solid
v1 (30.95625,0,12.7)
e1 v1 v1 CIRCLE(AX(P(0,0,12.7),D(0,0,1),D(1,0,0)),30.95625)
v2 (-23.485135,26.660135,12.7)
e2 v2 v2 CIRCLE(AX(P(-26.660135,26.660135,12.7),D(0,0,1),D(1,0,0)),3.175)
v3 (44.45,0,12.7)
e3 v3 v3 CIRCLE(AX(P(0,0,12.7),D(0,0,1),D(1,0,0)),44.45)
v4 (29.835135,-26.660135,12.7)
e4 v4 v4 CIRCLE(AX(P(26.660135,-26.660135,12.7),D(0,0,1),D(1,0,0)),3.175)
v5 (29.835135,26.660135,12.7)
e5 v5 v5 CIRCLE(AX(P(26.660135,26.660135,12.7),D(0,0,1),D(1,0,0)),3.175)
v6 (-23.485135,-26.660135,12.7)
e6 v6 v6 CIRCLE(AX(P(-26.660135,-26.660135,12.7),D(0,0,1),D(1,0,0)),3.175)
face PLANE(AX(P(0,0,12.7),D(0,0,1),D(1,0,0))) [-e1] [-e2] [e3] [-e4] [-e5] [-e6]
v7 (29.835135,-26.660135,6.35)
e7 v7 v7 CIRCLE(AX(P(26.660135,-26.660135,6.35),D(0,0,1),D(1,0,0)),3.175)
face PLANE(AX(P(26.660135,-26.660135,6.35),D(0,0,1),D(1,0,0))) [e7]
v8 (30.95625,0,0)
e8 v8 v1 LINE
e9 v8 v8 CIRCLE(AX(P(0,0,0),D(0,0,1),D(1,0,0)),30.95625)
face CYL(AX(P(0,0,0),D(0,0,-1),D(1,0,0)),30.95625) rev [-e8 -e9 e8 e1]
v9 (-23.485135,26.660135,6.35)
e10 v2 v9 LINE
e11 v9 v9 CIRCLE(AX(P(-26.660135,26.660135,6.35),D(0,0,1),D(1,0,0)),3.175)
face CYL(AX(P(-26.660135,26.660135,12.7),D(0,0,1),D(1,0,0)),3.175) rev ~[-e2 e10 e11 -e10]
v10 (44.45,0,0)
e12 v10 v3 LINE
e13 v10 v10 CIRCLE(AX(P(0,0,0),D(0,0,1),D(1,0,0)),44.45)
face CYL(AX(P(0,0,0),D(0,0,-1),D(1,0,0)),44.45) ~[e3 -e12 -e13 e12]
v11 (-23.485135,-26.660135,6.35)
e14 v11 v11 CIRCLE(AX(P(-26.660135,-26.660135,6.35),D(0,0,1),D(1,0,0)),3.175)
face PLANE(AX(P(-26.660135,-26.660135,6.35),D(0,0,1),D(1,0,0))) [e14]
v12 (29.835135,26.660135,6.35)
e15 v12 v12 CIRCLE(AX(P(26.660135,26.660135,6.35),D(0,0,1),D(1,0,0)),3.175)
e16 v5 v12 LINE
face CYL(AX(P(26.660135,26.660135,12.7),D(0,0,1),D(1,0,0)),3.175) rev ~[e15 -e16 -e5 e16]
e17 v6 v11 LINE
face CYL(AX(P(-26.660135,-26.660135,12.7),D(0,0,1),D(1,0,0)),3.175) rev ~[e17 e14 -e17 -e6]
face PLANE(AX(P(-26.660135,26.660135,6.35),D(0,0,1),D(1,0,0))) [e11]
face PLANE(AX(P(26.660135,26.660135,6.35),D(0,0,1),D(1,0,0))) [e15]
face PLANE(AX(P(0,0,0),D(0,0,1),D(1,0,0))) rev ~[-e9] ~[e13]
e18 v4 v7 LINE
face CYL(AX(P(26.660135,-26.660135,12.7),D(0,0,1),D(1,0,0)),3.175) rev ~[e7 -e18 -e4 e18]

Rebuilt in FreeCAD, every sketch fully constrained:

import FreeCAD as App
import Part
import Sketcher
from FreeCAD import Vector
Q = App.Units.Quantity

doc = App.newDocument("Part")
body = doc.addObject("PartDesign::Body", "Body")

# Sketch on XY plane
sketch1 = body.newObject("Sketcher::SketchObject", "Sketch")
sketch1.AttachmentSupport = (doc.getObject("XY_Plane"), [""])
sketch1.MapMode = "FlatFace"
sketch1.addGeometry([
    Part.Circle(Vector(0, 0, 0), Vector(0, 0, 1), 44),
    Part.Circle(Vector(0, 0, 0), Vector(0, 0, 1), 31),
], False)
sketch1.addConstraint([
    Sketcher.Constraint("Coincident", 0, 3, -1, 1),
    Sketcher.Constraint("Coincident", 1, 3, -1, 1),
    Sketcher.Constraint("Diameter", 0, Q("3.5 in")),
    Sketcher.Constraint("Diameter", 1, Q("2.4375 in")),
])
pad1 = body.newObject("PartDesign::Pad", "Pad")
pad1.Profile = sketch1
pad1.Length = Q("0.5 in")

# Sketch on XY plane
sketch2 = body.newObject("Sketcher::SketchObject", "Sketch001")
sketch2.AttachmentSupport = (doc.getObject("XY_Plane"), [""])
sketch2.MapMode = "FlatFace"
sketch2.AttachmentOffset = App.Placement(Vector(0, 0, 0.5 * 25.4), App.Rotation())
sketch2.addGeometry([
    Part.Circle(Vector(26.7, 26.7, 0), Vector(0, 0, 1), 3.2),
    Part.Circle(Vector(-26.7, 26.7, 0), Vector(0, 0, 1), 3.2),
    Part.Circle(Vector(-26.7, -26.7, 0), Vector(0, 0, 1), 3.2),
    Part.Circle(Vector(26.7, -26.7, 0), Vector(0, 0, 1), 3.2),
], False)
sketch2.addConstraint([
    Sketcher.Constraint("Equal", 0, 1),
    Sketcher.Constraint("Equal", 1, 2),
    Sketcher.Constraint("Equal", 2, 3),
    Sketcher.Constraint("Symmetric", 0, 3, 2, 3, -1, 1),
    Sketcher.Constraint("Symmetric", 1, 3, 3, 3, -1, 1),
    Sketcher.Constraint("Symmetric", 0, 3, 1, 3, -2),
    Sketcher.Constraint("Diameter", 0, Q("0.25 in")),
    Sketcher.Constraint("DistanceX", 1, 3, 0, 3, 53.32027),
    Sketcher.Constraint("DistanceY", 2, 3, 1, 3, 53.32027),
])
pocket1 = body.newObject("PartDesign::Pocket", "Pocket")
pocket1.Profile = sketch2
pocket1.Length = Q("0.25 in")

doc.recompute()
